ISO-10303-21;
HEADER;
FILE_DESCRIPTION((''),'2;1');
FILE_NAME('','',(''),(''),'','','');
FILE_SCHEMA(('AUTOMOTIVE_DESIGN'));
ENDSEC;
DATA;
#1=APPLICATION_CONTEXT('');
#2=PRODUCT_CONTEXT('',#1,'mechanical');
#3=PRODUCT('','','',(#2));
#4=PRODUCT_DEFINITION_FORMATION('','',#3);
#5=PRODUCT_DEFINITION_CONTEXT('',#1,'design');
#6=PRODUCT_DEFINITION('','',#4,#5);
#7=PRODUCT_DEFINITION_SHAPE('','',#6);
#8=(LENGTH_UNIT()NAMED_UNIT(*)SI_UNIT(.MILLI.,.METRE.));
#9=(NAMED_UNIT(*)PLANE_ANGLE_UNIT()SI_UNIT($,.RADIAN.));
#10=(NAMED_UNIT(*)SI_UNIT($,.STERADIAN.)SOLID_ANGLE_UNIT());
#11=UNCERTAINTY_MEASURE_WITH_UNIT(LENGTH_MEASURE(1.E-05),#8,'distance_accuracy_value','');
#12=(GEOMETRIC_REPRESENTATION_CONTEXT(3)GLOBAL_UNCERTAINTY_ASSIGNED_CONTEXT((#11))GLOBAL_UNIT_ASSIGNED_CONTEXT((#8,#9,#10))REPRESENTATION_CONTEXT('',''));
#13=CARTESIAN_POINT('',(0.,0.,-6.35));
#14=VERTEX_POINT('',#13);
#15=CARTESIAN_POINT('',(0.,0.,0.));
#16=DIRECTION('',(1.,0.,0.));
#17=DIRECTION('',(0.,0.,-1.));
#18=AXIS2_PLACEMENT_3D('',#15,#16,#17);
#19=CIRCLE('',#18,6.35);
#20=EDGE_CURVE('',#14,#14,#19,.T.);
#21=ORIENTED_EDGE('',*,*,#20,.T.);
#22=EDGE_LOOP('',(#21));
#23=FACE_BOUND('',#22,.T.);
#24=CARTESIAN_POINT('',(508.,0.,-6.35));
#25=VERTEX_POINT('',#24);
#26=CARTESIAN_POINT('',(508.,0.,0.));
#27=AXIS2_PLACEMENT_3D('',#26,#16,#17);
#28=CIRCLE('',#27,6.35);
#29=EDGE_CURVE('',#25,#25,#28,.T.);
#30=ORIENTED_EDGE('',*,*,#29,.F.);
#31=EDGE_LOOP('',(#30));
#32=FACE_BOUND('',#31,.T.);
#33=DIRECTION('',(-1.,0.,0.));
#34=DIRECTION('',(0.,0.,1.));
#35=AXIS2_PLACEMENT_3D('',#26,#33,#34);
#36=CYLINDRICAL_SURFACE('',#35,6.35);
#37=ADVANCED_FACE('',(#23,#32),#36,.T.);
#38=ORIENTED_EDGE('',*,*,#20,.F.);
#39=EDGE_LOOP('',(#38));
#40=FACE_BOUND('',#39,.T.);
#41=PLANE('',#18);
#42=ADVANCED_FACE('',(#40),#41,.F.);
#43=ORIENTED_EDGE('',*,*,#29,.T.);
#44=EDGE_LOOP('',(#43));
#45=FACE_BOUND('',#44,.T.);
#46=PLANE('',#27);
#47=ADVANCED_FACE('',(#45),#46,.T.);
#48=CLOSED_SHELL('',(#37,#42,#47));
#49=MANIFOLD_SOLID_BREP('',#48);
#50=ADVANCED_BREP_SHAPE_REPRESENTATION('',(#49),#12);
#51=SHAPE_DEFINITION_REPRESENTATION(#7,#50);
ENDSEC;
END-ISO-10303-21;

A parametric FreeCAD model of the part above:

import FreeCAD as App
import Part
import Sketcher

V = App.Vector
Q = App.Units.Quantity

doc = App.newDocument("Part")
body = doc.addObject("PartDesign::Body", "Body")

sketch1 = doc.addObject("Sketcher::SketchObject", "Sketch")
body.addObject(sketch1)
sketch1.AttachmentSupport = (doc.YZ_Plane, [""])
sketch1.MapMode = "FlatFace"
sketch1.addGeometry(Part.Circle(V(0, 0, 0), V(0, 0, 1), 6.35), False)
sketch1.addConstraint([
    Sketcher.Constraint("Coincident", 0, 3, -1, 1),
    Sketcher.Constraint("Diameter", 0, Q("0.5 in")),
])
pad1 = doc.addObject("PartDesign::Pad", "Pad")
body.addObject(pad1)
pad1.Profile = sketch1
pad1.Length = Q("20 in")

doc.recompute()
